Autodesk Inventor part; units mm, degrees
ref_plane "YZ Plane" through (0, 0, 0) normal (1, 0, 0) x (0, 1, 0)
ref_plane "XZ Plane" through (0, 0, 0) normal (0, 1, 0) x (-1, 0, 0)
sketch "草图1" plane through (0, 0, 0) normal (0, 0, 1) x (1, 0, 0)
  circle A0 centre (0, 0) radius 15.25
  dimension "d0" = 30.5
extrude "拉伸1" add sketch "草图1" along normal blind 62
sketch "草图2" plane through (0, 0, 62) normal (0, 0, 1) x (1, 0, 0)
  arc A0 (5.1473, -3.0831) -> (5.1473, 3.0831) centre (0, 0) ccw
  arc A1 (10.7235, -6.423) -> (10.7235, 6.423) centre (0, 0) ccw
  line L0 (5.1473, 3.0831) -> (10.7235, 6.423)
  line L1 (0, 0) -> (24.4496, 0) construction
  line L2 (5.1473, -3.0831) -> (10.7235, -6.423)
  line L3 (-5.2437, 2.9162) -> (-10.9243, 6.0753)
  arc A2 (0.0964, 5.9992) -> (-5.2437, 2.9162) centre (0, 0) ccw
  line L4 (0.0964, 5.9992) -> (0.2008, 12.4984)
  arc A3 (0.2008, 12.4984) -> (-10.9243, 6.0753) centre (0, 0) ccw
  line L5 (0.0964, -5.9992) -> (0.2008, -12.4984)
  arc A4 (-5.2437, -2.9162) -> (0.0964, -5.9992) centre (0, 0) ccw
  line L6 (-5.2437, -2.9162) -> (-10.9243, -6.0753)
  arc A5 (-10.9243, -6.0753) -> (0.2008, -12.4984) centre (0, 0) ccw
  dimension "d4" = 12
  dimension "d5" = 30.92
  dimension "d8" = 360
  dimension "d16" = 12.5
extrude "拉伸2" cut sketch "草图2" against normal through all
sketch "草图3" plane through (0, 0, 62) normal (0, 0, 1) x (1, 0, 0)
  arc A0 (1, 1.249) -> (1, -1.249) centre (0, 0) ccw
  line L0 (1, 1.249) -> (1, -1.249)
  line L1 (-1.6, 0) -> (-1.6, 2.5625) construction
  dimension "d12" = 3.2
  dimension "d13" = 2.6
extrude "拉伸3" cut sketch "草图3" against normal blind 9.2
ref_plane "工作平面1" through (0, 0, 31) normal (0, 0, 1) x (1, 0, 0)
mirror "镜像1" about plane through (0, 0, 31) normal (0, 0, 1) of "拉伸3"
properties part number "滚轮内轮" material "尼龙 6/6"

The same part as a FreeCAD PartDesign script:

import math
import FreeCAD as App
import Part
import Sketcher
Q = App.Units.Quantity

doc = App.newDocument("Part")
params = doc.addObject("Spreadsheet::Sheet", "Params")
for row, (alias, value) in enumerate([
    ("sketch1_diameter", "30.5 mm"),
    ("pad1_length", "62 mm"),
    ("sketch2_radius", "6 mm"),
    ("sketch2_radius2", "12.5 mm"),
    ("sketch3_radius", "1.6 mm"),
    ("pocket2_length", "9.2 mm"),
], start=1):
    params.set(f"A{row}", alias)
    params.set(f"B{row}", "=" + value)
    params.setAlias(f"B{row}", alias)

body = doc.addObject("PartDesign::Body", "Body")

# Sketch on XY plane
sketch1 = body.newObject("Sketcher::SketchObject", "Sketch")
sketch1.AttachmentSupport = (doc.getObject("XY_Plane"), [""])
sketch1.MapMode = "FlatFace"
sketch1.addGeometry(Part.Circle(App.Vector(0, 0, 0), App.Vector(0, 0, 1), 15), False)
sketch1.addConstraint([
    Sketcher.Constraint("Coincident", 0, 3, -1, 1),
    Sketcher.Constraint("Diameter", 0, Q("30.5 mm")),
])
sketch1.setExpression("Constraints[1]", "Params.sketch1_diameter")
pad1 = body.newObject("PartDesign::Pad", "Pad")
pad1.Profile = sketch1
pad1.setExpression("Length", "Params.pad1_length")

# Sketch on XY plane
sketch2 = body.newObject("Sketcher::SketchObject", "Sketch001")
sketch2.AttachmentSupport = (doc.getObject("XY_Plane"), [""])
sketch2.MapMode = "FlatFace"
sketch2.AttachmentOffset = App.Placement(App.Vector(0, 0, 62), App.Rotation())
sketch2.addGeometry([
    Part.ArcOfCircle(Part.Circle(App.Vector(0, 0, 0), App.Vector(0, 0, 1), 6), math.radians(-31), math.radians(31)),  # 0
    Part.LineSegment(App.Vector(5, -3, 0), App.Vector(11, -6, 0)),  # 1
    Part.ArcOfCircle(Part.Circle(App.Vector(0, 0, 0), App.Vector(0, 0, 1), 12), math.radians(-31), math.radians(31)),  # 2
    Part.LineSegment(App.Vector(11, 6, 0), App.Vector(5, 3, 0)),  # 3
    Part.LineSegment(App.Vector(-11, 6, 0), App.Vector(-5, 3, 0)),  # 4
    Part.ArcOfCircle(Part.Circle(App.Vector(0, 0, 0), App.Vector(0, 0, 1), 6), math.radians(89), math.radians(151)),  # 5
    Part.LineSegment(App.Vector(0, 6, 0), App.Vector(0, 12, 0)),  # 6
    Part.ArcOfCircle(Part.Circle(App.Vector(0, 0, 0), App.Vector(0, 0, 1), 12), math.radians(89), math.radians(151)),  # 7
    Part.LineSegment(App.Vector(0, -12, 0), App.Vector(0, -6, 0)),  # 8
    Part.ArcOfCircle(Part.Circle(App.Vector(0, 0, 0), App.Vector(0, 0, 1), 6), math.radians(-151), math.radians(-89)),  # 9
    Part.LineSegment(App.Vector(-5, -3, 0), App.Vector(-11, -6, 0)),  # 10
    Part.ArcOfCircle(Part.Circle(App.Vector(0, 0, 0), App.Vector(0, 0, 1), 13), math.radians(-151), math.radians(-89)),  # 11
], False)
sketch2.addConstraint([
    Sketcher.Constraint("Coincident", 0, 1, 1, 1),
    Sketcher.Constraint("Coincident", 1, 2, 2, 1),
    Sketcher.Constraint("Coincident", 2, 2, 3, 1),
    Sketcher.Constraint("Coincident", 3, 2, 0, 2),
    Sketcher.Constraint("Coincident", 4, 2, 5, 2),
    Sketcher.Constraint("Coincident", 5, 1, 6, 1),
    Sketcher.Constraint("Coincident", 6, 2, 7, 1),
    Sketcher.Constraint("Coincident", 7, 2, 4, 1),
    Sketcher.Constraint("Coincident", 8, 2, 9, 2),
    Sketcher.Constraint("Coincident", 9, 1, 10, 1),
    Sketcher.Constraint("Coincident", 10, 2, 11, 1),
    Sketcher.Constraint("Coincident", 11, 2, 8, 1),
    Sketcher.Constraint("Coincident", 0, 3, -1, 1),
    Sketcher.Constraint("Coincident", 2, 3, -1, 1),
    Sketcher.Constraint("Coincident", 5, 3, -1, 1),
    Sketcher.Constraint("Coincident", 7, 3, -1, 1),
    Sketcher.Constraint("Coincident", 9, 3, -1, 1),
    Sketcher.Constraint("Coincident", 11, 3, -1, 1),
    Sketcher.Constraint("Equal", 0, 5),
    Sketcher.Constraint("Equal", 2, 7),
    Sketcher.Constraint("Equal", 5, 9),
    Sketcher.Constraint("Equal", 7, 11),
    Sketcher.Constraint("Vertical", 1, 2, 2, 2),
    Sketcher.Constraint("Vertical", 0, 1, 3, 2),
    Sketcher.Constraint("Vertical", 5, 1, 8, 2),
    Sketcher.Constraint("Vertical", 4, 2, 9, 1),
    Sketcher.Constraint("Vertical", 7, 2, 10, 2),
    Sketcher.Constraint("Vertical", 6, 2, 11, 2),
    Sketcher.Constraint("Radius", 0, Q("6 mm")),
    Sketcher.Constraint("Radius", 2, Q("12.5 mm")),
    Sketcher.Constraint("Angle", 1, Q("-30.9198 deg")),
    Sketcher.Constraint("Angle", 4, Q("-29.0793 deg")),
    Sketcher.Constraint("Angle", 6, Q("89.0797 deg")),
    Sketcher.Constraint("DistanceY", 0, 1, -1, 1, Q("3.083 mm")),
    Sketcher.Constraint("DistanceX", 5, 1, 3, 2, Q("5.051 mm")),
    Sketcher.Constraint("DistanceY", 5, 1, 7, 2, Q("0.076 mm")),
])
sketch2.setExpression("Constraints[28]", "Params.sketch2_radius")
sketch2.setExpression("Constraints[29]", "Params.sketch2_radius2")
pocket1 = body.newObject("PartDesign::Pocket", "Pocket")
pocket1.Profile = sketch2
pocket1.Type = "ThroughAll"

# Sketch on XY plane
sketch3 = body.newObject("Sketcher::SketchObject", "Sketch002")
sketch3.AttachmentSupport = (doc.getObject("XY_Plane"), [""])
sketch3.MapMode = "FlatFace"
sketch3.AttachmentOffset = App.Placement(App.Vector(0, 0, 62), App.Rotation())
sketch3.addGeometry([
    Part.LineSegment(App.Vector(1, -1.2, 0), App.Vector(1, 1.2, 0)),
    Part.ArcOfCircle(Part.Circle(App.Vector(0, 0, 0), App.Vector(0, 0, 1), 1.6), math.radians(51), math.radians(309)),
], False)
sketch3.addConstraint([
    Sketcher.Constraint("Coincident", 0, 1, 1, 2),
    Sketcher.Constraint("Coincident", 1, 1, 0, 2),
    Sketcher.Constraint("Vertical", 0),
    Sketcher.Constraint("Coincident", 1, 3, -1, 1),
    Sketcher.Constraint("Radius", 1, Q("1.6 mm")),
    Sketcher.Constraint("DistanceX", -1, 1, 0, 1, Q("1 mm")),
])
sketch3.setExpression("Constraints[4]", "Params.sketch3_radius")
pocket2 = body.newObject("PartDesign::Pocket", "Pocket001")
pocket2.Profile = sketch3
pocket2.setExpression("Length", "Params.pocket2_length")
doc.recompute()

datumplane = body.newObject("PartDesign::Plane", "DatumPlane")
datumplane.AttachmentSupport = (doc.getObject("XY_Plane"), [""])
datumplane.MapMode = "FlatFace"
datumplane.AttachmentOffset = App.Placement(App.Vector(0, 0, 31), App.Rotation())
mirrored = body.newObject("PartDesign::Mirrored", "Mirrored")
mirrored.Originals = [pocket2]
mirrored.MirrorPlane = (datumplane, [""])
body.Tip = mirrored

doc.recompute()
